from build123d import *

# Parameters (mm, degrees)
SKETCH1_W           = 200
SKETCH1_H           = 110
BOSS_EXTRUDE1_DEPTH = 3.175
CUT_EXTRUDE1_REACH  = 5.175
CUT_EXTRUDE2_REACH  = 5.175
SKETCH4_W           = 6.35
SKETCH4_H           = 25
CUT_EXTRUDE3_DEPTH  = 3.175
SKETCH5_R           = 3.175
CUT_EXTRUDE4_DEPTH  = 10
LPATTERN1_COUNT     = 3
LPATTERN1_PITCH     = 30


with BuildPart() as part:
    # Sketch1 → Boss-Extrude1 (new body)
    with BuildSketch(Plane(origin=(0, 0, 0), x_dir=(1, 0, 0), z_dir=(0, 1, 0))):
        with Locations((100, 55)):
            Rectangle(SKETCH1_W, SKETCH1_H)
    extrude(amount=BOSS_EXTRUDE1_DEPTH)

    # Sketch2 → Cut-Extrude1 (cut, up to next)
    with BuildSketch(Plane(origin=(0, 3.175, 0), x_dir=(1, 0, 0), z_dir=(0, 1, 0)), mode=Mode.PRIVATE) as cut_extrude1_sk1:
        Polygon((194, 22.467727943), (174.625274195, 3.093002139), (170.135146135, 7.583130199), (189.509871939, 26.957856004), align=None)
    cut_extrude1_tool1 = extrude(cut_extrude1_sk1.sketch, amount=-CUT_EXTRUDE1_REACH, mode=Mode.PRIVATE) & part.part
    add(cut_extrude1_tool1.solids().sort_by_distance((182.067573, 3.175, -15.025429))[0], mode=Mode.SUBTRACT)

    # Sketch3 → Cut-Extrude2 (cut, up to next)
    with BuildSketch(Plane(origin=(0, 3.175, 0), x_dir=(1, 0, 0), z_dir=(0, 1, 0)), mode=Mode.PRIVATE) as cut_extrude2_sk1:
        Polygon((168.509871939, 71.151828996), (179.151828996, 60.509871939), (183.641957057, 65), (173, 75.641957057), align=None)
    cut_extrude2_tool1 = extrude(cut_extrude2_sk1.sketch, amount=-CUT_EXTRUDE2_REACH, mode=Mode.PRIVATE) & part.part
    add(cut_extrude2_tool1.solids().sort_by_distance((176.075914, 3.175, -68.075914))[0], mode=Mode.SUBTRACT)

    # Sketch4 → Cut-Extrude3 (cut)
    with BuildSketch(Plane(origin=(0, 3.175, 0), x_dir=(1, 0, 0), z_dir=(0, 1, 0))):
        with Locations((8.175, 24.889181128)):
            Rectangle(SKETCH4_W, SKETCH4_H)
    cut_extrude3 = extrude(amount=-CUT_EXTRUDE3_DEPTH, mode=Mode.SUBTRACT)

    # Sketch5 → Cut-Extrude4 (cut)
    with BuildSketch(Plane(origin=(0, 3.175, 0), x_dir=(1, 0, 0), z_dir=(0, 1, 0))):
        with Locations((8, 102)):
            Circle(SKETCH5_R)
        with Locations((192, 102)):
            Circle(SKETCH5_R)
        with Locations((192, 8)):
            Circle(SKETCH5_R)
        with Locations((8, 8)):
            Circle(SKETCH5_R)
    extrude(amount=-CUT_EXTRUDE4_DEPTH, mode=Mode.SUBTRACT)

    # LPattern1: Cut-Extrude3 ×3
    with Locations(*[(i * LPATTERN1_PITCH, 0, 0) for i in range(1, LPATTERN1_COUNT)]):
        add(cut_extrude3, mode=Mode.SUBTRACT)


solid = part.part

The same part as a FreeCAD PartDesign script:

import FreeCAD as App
import Part
import Sketcher
from FreeCAD import Vector
Q = App.Units.Quantity

doc = App.newDocument("Part")
body = doc.addObject("PartDesign::Body", "Body")

sketch1 = doc.addObject("Sketcher::SketchObject", "Sketch")
body.addObject(sketch1)
sketch1.AttachmentSupport = (doc.XZ_Plane, [""])
sketch1.MapMode = "FlatFace"
sketch1.addGeometry([
    Part.LineSegment(Vector(0, -110, 0), Vector(0, 0, 0)),
    Part.LineSegment(Vector(0, 0, 0), Vector(200, 0, 0)),
    Part.LineSegment(Vector(200, 0, 0), Vector(200, -110, 0)),
    Part.LineSegment(Vector(200, -110, 0), Vector(0, -110, 0)),
], False)
sketch1.addConstraint([
    Sketcher.Constraint("Coincident", 0, 2, 1, 1),
    Sketcher.Constraint("Coincident", 1, 2, 2, 1),
    Sketcher.Constraint("Coincident", 2, 2, 3, 1),
    Sketcher.Constraint("Coincident", 3, 2, 0, 1),
    Sketcher.Constraint("Vertical", 0),
    Sketcher.Constraint("Horizontal", 1),
    Sketcher.Constraint("Vertical", 2),
    Sketcher.Constraint("Horizontal", 3),
    Sketcher.Constraint("Coincident", 0, 2, -1, 1),
    Sketcher.Constraint("DistanceX", 1, 1, 1, 2, 200.0),
    Sketcher.Constraint("DistanceY", 0, 1, 0, 2, 110.0),
])
pad1 = doc.addObject("PartDesign::Pad", "Pad")
body.addObject(pad1)
pad1.Profile = sketch1
pad1.Length = 3.175
pad1.Reversed = True

sketch2 = doc.addObject("Sketcher::SketchObject", "Sketch001")
body.addObject(sketch2)
sketch2.AttachmentSupport = (doc.XZ_Plane, [""])
sketch2.MapMode = "FlatFace"
sketch2.AttachmentOffset = App.Placement(Vector(0, 0, -3.175), App.Rotation())
sketch2.addGeometry([
    Part.LineSegment(Vector(175, -3, 0), Vector(194, -22, 0)),
    Part.LineSegment(Vector(194, -22, 0), Vector(190, -27, 0)),
    Part.LineSegment(Vector(190, -27, 0), Vector(170, -8, 0)),
    Part.LineSegment(Vector(170, -8, 0), Vector(175, -3, 0)),
], False)
sketch2.addConstraint([
    Sketcher.Constraint("Coincident", 0, 2, 1, 1),
    Sketcher.Constraint("Coincident", 1, 2, 2, 1),
    Sketcher.Constraint("Coincident", 2, 2, 3, 1),
    Sketcher.Constraint("Coincident", 3, 2, 0, 1),
    Sketcher.Constraint("Perpendicular", 0, 1),
    Sketcher.Constraint("Perpendicular", 1, 2),
    Sketcher.Constraint("Perpendicular", 2, 3),
    Sketcher.Constraint("Angle", 0, Q("-45 deg")),
    Sketcher.Constraint("DistanceX", -1, 1, 0, 2, 194.0),
    Sketcher.Constraint("Distance", 0, 27.4),
    Sketcher.Constraint("Distance", 1, 6.35),
    Sketcher.Constraint("DistanceY", 2, 2, -1, 1, 7.58313),
])
pocket1 = doc.addObject("PartDesign::Pocket", "Pocket")
body.addObject(pocket1)
pocket1.Profile = sketch2
pocket1.Type = "UpToFirst"
pocket1.Reversed = True

sketch3 = doc.addObject("Sketcher::SketchObject", "Sketch002")
body.addObject(sketch3)
sketch3.AttachmentSupport = (doc.XZ_Plane, [""])
sketch3.MapMode = "FlatFace"
sketch3.AttachmentOffset = App.Placement(Vector(0, 0, -3.175), App.Rotation())
sketch3.addGeometry([
    Part.LineSegment(Vector(169, -71, 0), Vector(179, -61, 0)),
    Part.LineSegment(Vector(179, -61, 0), Vector(184, -65, 0)),
    Part.LineSegment(Vector(184, -65, 0), Vector(173, -76, 0)),
    Part.LineSegment(Vector(173, -76, 0), Vector(169, -71, 0)),
], False)
sketch3.addConstraint([
    Sketcher.Constraint("Coincident", 0, 2, 1, 1),
    Sketcher.Constraint("Coincident", 1, 2, 2, 1),
    Sketcher.Constraint("Coincident", 2, 2, 3, 1),
    Sketcher.Constraint("Coincident", 3, 2, 0, 1),
    Sketcher.Constraint("Perpendicular", 0, 1),
    Sketcher.Constraint("Perpendicular", 1, 2),
    Sketcher.Constraint("Perpendicular", 2, 3),
    Sketcher.Constraint("Angle", 0, Q("45 deg")),
    Sketcher.Constraint("DistanceY", 1, 2, -1, 1, 65.0),
    Sketcher.Constraint("DistanceX", -1, 1, 2, 2, 173.0),
    Sketcher.Constraint("Distance", 0, 15.05),
    Sketcher.Constraint("Distance", 1, 6.35),
])
pocket2 = doc.addObject("PartDesign::Pocket", "Pocket001")
body.addObject(pocket2)
pocket2.Profile = sketch3
pocket2.Type = "UpToFirst"
pocket2.Reversed = True

sketch4 = doc.addObject("Sketcher::SketchObject", "Sketch003")
body.addObject(sketch4)
sketch4.AttachmentSupport = (doc.XZ_Plane, [""])
sketch4.MapMode = "FlatFace"
sketch4.AttachmentOffset = App.Placement(Vector(0, 0, -3.175), App.Rotation())
sketch4.addGeometry([
    Part.LineSegment(Vector(5, -37, 0), Vector(5, -12, 0)),
    Part.LineSegment(Vector(5, -12, 0), Vector(11, -12, 0)),
    Part.LineSegment(Vector(11, -12, 0), Vector(11, -37, 0)),
    Part.LineSegment(Vector(11, -37, 0), Vector(5, -37, 0)),
], False)
sketch4.addConstraint([
    Sketcher.Constraint("Coincident", 0, 2, 1, 1),
    Sketcher.Constraint("Coincident", 1, 2, 2, 1),
    Sketcher.Constraint("Coincident", 2, 2, 3, 1),
    Sketcher.Constraint("Coincident", 3, 2, 0, 1),
    Sketcher.Constraint("Vertical", 0),
    Sketcher.Constraint("Horizontal", 1),
    Sketcher.Constraint("Vertical", 2),
    Sketcher.Constraint("Horizontal", 3),
    Sketcher.Constraint("DistanceY", 0, 1, 0, 2, 25.0),
    Sketcher.Constraint("DistanceX", -1, 1, 0, 2, 5.0),
    Sketcher.Constraint("DistanceX", 1, 1, 1, 2, 6.35),
    Sketcher.Constraint("DistanceY", 0, 2, -1, 1, 12.389181),
])
pocket3 = doc.addObject("PartDesign::Pocket", "Pocket002")
body.addObject(pocket3)
pocket3.Profile = sketch4
pocket3.Length = 3.175
pocket3.Reversed = True

sketch5 = doc.addObject("Sketcher::SketchObject", "Sketch004")
body.addObject(sketch5)
sketch5.AttachmentSupport = (doc.XZ_Plane, [""])
sketch5.MapMode = "FlatFace"
sketch5.AttachmentOffset = App.Placement(Vector(0, 0, -3.175), App.Rotation())
sketch5.addGeometry([
    Part.Circle(Vector(8, -102, 0), Vector(0, 0, 1), 3.2),
    Part.Circle(Vector(192, -102, 0), Vector(0, 0, 1), 3.2),
    Part.Circle(Vector(192, -8, 0), Vector(0, 0, 1), 3.2),
    Part.Circle(Vector(8, -8, 0), Vector(0, 0, 1), 3.2),
], False)
sketch5.addConstraint([
    Sketcher.Constraint("Equal", 0, 1),
    Sketcher.Constraint("Equal", 1, 2),
    Sketcher.Constraint("Equal", 2, 3),
    Sketcher.Constraint("Horizontal", 0, 3, 1, 3),
    Sketcher.Constraint("Horizontal", 2, 3, 3, 3),
    Sketcher.Constraint("Vertical", 1, 3, 2, 3),
    Sketcher.Constraint("Vertical", 0, 3, 3, 3),
    Sketcher.Constraint("Diameter", 0, 6.35),
    Sketcher.Constraint("DistanceX", -1, 1, 0, 3, 8.0),
    Sketcher.Constraint("DistanceY", 0, 3, -1, 1, 102.0),
    Sketcher.Constraint("DistanceX", -1, 1, 1, 3, 192.0),
    Sketcher.Constraint("DistanceY", 2, 3, -1, 1, 8.0),
])
pocket4 = doc.addObject("PartDesign::Pocket", "Pocket003")
body.addObject(pocket4)
pocket4.Profile = sketch5
pocket4.Length = 10
pocket4.Reversed = True
doc.recompute()

linearpattern = doc.addObject("PartDesign::LinearPattern", "LinearPattern")
body.addObject(linearpattern)
linearpattern.Originals = [pocket3]
linearpattern.Direction = (doc.X_Axis, [""])
linearpattern.Mode = "offset"
linearpattern.Offset = 30
linearpattern.Occurrences = 3
body.Tip = linearpattern

doc.recompute()
